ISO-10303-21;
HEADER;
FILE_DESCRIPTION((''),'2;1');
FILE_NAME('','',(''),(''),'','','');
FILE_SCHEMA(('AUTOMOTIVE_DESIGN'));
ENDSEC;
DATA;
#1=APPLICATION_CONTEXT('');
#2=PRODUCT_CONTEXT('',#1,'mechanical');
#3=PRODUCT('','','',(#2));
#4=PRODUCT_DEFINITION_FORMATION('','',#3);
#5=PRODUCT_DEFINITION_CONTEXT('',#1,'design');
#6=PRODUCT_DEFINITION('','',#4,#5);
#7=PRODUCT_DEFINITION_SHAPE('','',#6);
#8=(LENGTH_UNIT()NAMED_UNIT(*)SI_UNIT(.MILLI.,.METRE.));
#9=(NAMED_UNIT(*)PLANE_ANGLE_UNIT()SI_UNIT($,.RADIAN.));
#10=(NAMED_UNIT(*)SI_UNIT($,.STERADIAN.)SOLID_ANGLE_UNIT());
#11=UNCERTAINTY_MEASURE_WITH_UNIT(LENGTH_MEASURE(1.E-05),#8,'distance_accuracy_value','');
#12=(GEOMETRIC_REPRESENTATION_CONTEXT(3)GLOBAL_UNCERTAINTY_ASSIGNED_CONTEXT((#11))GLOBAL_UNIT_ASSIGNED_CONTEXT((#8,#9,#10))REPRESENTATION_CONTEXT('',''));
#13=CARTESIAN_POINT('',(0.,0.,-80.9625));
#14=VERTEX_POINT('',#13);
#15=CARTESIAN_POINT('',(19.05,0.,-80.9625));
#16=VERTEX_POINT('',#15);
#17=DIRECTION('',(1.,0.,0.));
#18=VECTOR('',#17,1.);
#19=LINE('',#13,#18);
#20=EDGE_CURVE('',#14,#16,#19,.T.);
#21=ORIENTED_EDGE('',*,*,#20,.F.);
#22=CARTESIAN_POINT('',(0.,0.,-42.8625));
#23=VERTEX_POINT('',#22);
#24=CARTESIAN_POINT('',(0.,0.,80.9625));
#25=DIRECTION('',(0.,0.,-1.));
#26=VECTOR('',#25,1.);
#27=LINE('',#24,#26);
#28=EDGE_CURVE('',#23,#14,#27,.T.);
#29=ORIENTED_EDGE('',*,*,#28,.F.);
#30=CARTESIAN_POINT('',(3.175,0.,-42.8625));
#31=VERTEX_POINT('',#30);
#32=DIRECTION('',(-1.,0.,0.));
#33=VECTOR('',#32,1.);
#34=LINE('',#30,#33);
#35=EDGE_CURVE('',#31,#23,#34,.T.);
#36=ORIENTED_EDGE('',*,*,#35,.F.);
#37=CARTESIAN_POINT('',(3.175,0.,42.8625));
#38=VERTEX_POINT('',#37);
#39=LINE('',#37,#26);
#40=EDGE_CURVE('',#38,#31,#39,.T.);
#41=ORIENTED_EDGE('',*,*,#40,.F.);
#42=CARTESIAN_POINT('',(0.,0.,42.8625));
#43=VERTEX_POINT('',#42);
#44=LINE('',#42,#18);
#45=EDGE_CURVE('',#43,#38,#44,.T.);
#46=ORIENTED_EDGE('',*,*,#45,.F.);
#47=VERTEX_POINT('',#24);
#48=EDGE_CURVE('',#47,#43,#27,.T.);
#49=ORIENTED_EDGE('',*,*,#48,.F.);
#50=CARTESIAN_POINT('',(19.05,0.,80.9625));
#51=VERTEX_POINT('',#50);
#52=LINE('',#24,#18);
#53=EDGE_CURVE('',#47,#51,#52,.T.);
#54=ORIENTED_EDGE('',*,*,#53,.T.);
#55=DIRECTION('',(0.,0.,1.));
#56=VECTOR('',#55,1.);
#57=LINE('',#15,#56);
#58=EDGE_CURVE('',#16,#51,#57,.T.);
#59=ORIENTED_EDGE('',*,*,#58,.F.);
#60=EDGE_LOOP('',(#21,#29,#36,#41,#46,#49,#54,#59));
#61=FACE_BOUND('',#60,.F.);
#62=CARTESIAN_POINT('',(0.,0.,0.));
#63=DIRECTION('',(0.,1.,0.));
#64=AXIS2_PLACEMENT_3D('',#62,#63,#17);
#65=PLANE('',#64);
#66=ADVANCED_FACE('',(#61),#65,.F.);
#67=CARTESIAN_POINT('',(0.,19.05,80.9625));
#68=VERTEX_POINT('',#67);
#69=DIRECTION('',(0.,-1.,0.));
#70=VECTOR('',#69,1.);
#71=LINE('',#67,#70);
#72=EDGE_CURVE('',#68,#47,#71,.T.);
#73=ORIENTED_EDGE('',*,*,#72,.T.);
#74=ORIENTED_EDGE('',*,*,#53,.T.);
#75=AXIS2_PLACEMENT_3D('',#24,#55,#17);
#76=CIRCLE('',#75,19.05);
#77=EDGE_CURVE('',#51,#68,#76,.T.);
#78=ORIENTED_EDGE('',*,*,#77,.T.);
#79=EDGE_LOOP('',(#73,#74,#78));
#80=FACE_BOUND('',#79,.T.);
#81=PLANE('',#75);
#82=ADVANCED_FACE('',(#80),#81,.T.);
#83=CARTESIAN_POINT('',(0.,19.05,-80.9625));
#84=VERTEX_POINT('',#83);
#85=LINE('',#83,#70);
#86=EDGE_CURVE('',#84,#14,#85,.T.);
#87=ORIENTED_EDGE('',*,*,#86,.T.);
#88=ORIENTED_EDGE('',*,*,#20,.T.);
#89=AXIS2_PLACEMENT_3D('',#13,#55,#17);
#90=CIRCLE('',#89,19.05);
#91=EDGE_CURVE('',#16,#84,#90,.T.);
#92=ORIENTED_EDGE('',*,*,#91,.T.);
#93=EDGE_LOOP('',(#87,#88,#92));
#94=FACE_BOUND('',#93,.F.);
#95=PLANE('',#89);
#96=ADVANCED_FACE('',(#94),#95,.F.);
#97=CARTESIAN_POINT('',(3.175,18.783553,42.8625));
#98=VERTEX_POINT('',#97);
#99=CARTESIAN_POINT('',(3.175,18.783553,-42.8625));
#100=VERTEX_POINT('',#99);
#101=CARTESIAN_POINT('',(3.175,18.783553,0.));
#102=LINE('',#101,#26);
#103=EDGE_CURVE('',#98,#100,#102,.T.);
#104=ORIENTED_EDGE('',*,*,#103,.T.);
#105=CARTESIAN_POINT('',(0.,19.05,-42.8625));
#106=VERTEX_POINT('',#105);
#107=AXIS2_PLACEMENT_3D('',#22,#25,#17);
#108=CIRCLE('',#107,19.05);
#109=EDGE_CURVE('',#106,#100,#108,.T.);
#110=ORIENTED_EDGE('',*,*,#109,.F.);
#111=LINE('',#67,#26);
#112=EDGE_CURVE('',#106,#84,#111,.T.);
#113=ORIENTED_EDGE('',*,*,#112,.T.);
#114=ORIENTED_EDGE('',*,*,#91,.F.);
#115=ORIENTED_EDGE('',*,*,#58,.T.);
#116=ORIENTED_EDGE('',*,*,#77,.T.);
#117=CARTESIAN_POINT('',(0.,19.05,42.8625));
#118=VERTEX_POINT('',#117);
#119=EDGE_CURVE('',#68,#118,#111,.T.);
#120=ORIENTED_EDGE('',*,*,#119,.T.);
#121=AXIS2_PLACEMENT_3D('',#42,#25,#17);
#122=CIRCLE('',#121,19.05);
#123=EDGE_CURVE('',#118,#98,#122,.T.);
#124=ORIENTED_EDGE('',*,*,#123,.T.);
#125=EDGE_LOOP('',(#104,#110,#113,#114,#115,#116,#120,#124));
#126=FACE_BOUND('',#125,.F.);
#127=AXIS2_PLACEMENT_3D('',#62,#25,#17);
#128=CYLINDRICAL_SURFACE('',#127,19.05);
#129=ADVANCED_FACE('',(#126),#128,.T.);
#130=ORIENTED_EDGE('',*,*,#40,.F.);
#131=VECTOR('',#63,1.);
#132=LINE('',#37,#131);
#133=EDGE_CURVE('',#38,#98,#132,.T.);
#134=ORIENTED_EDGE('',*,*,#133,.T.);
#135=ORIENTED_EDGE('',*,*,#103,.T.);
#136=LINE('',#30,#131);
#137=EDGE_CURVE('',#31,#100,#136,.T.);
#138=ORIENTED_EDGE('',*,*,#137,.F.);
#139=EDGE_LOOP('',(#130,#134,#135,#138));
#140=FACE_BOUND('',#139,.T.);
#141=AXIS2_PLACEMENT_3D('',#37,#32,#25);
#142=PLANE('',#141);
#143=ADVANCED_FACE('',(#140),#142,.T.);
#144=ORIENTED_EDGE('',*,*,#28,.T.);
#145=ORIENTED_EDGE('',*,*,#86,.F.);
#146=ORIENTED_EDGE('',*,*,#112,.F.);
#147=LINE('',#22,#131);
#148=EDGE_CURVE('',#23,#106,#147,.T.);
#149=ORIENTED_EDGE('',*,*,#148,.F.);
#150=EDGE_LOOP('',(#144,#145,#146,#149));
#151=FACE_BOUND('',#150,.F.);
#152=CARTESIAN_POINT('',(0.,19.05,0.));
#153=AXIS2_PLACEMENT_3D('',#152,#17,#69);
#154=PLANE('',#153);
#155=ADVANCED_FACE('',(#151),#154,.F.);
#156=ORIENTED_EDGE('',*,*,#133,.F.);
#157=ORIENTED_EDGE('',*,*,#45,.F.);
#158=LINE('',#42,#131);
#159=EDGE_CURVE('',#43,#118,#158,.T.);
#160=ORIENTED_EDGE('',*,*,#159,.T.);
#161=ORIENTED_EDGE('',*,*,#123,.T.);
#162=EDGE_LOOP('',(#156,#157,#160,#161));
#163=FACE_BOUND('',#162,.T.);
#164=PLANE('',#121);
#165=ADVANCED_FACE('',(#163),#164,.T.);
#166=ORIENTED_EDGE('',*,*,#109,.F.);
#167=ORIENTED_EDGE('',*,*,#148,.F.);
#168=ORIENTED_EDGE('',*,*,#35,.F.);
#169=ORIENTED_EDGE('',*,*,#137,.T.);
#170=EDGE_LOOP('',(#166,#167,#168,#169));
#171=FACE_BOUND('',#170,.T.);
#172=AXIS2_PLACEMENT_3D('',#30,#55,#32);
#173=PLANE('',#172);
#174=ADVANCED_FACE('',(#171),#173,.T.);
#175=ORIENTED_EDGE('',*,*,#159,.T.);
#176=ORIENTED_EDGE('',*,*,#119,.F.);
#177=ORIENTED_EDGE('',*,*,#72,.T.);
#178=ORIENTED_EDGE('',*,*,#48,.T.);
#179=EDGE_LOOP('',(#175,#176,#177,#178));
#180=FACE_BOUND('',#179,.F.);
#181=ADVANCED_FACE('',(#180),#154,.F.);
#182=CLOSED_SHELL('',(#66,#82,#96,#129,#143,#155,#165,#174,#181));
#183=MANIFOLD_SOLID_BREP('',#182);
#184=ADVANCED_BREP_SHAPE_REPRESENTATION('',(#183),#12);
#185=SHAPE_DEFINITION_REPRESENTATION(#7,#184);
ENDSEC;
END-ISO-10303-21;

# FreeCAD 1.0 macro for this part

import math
import FreeCAD as App
import Part
import Sketcher
from FreeCAD import Vector
Q = App.Units.Quantity

doc = App.newDocument("Part")
params = doc.addObject("Spreadsheet::Sheet", "Params")
for row, (alias, value) in enumerate([
    ("sketch1_radius", "0.75 in"),
    ("pad1_length", "6.375 in"),
    ("sketch2_width", "0.125 in"),
    ("sketch2_height", "3.375 in"),
], start=1):
    params.set(f"A{row}", alias)
    params.set(f"B{row}", "=" + value)
    params.setAlias(f"B{row}", alias)

body = doc.addObject("PartDesign::Body", "Body")

sketch1 = body.newObject("Sketcher::SketchObject", "Sketch")
sketch1.AttachmentSupport = (doc.getObject("XY_Plane"), [""])
sketch1.MapMode = "FlatFace"
sketch1.addGeometry(Part.LineSegment(Vector(0, 0, 0), Vector(19, 0, 0)), False)
sketch1.addGeometry(Part.ArcOfCircle(Part.Circle(Vector(0, 0, 0), Vector(0, 0, 1), 19), math.radians(0), math.radians(90)), False)
sketch1.addGeometry(Part.LineSegment(Vector(0, 19, 0), Vector(0, 0, 0)), False)
sketch1.addConstraint(Sketcher.Constraint("Coincident", 0, 2, 1, 1))
sketch1.addConstraint(Sketcher.Constraint("Coincident", 1, 2, 2, 1))
sketch1.addConstraint(Sketcher.Constraint("Coincident", 2, 2, 0, 1))
sketch1.addConstraint(Sketcher.Constraint("Horizontal", 0))
sketch1.addConstraint(Sketcher.Constraint("Vertical", 2))
sketch1.addConstraint(Sketcher.Constraint("Coincident", 1, 3, -1, 1))
sketch1.addConstraint(Sketcher.Constraint("Coincident", 2, 2, -1, 1))
sketch1.addConstraint(Sketcher.Constraint("Radius", 1, Q("0.75 in")))
sketch1.setExpression("Constraints[7]", "Params.sketch1_radius")
pad1 = body.newObject("PartDesign::Pad", "Pad")
pad1.Profile = sketch1
pad1.setExpression("Length", "Params.pad1_length")
pad1.Midplane = True

sketch2 = body.newObject("Sketcher::SketchObject", "Sketch001")
sketch2.AttachmentSupport = (doc.getObject("XZ_Plane"), [""])
sketch2.MapMode = "FlatFace"
sketch2.addGeometry(Part.LineSegment(Vector(3.2, 42.9, 0), Vector(0, 42.9, 0)), False)
sketch2.addGeometry(Part.LineSegment(Vector(0, 42.9, 0), Vector(0, -42.9, 0)), False)
sketch2.addGeometry(Part.LineSegment(Vector(0, -42.9, 0), Vector(3.2, -42.9, 0)), False)
sketch2.addGeometry(Part.LineSegment(Vector(3.2, -42.9, 0), Vector(3.2, 42.9, 0)), False)
sketch2.addConstraint(Sketcher.Constraint("Coincident", 0, 2, 1, 1))
sketch2.addConstraint(Sketcher.Constraint("Coincident", 1, 2, 2, 1))
sketch2.addConstraint(Sketcher.Constraint("Coincident", 2, 2, 3, 1))
sketch2.addConstraint(Sketcher.Constraint("Coincident", 3, 2, 0, 1))
sketch2.addConstraint(Sketcher.Constraint("Horizontal", 0))
sketch2.addConstraint(Sketcher.Constraint("Vertical", 1))
sketch2.addConstraint(Sketcher.Constraint("Horizontal", 2))
sketch2.addConstraint(Sketcher.Constraint("Vertical", 3))
sketch2.addConstraint(Sketcher.Constraint("Symmetric", 0, 2, 1, 2, -1, 1))
sketch2.addConstraint(Sketcher.Constraint("DistanceX", 0, 2, 0, 1, Q("0.125 in")))
sketch2.addConstraint(Sketcher.Constraint("DistanceY", 1, 2, 1, 1, Q("3.375 in")))
sketch2.setExpression("Constraints[9]", "Params.sketch2_width")
sketch2.setExpression("Constraints[10]", "Params.sketch2_height")
pocket1 = body.newObject("PartDesign::Pocket", "Pocket")
pocket1.Profile = sketch2
pocket1.Type = "ThroughAll"

doc.recompute()
